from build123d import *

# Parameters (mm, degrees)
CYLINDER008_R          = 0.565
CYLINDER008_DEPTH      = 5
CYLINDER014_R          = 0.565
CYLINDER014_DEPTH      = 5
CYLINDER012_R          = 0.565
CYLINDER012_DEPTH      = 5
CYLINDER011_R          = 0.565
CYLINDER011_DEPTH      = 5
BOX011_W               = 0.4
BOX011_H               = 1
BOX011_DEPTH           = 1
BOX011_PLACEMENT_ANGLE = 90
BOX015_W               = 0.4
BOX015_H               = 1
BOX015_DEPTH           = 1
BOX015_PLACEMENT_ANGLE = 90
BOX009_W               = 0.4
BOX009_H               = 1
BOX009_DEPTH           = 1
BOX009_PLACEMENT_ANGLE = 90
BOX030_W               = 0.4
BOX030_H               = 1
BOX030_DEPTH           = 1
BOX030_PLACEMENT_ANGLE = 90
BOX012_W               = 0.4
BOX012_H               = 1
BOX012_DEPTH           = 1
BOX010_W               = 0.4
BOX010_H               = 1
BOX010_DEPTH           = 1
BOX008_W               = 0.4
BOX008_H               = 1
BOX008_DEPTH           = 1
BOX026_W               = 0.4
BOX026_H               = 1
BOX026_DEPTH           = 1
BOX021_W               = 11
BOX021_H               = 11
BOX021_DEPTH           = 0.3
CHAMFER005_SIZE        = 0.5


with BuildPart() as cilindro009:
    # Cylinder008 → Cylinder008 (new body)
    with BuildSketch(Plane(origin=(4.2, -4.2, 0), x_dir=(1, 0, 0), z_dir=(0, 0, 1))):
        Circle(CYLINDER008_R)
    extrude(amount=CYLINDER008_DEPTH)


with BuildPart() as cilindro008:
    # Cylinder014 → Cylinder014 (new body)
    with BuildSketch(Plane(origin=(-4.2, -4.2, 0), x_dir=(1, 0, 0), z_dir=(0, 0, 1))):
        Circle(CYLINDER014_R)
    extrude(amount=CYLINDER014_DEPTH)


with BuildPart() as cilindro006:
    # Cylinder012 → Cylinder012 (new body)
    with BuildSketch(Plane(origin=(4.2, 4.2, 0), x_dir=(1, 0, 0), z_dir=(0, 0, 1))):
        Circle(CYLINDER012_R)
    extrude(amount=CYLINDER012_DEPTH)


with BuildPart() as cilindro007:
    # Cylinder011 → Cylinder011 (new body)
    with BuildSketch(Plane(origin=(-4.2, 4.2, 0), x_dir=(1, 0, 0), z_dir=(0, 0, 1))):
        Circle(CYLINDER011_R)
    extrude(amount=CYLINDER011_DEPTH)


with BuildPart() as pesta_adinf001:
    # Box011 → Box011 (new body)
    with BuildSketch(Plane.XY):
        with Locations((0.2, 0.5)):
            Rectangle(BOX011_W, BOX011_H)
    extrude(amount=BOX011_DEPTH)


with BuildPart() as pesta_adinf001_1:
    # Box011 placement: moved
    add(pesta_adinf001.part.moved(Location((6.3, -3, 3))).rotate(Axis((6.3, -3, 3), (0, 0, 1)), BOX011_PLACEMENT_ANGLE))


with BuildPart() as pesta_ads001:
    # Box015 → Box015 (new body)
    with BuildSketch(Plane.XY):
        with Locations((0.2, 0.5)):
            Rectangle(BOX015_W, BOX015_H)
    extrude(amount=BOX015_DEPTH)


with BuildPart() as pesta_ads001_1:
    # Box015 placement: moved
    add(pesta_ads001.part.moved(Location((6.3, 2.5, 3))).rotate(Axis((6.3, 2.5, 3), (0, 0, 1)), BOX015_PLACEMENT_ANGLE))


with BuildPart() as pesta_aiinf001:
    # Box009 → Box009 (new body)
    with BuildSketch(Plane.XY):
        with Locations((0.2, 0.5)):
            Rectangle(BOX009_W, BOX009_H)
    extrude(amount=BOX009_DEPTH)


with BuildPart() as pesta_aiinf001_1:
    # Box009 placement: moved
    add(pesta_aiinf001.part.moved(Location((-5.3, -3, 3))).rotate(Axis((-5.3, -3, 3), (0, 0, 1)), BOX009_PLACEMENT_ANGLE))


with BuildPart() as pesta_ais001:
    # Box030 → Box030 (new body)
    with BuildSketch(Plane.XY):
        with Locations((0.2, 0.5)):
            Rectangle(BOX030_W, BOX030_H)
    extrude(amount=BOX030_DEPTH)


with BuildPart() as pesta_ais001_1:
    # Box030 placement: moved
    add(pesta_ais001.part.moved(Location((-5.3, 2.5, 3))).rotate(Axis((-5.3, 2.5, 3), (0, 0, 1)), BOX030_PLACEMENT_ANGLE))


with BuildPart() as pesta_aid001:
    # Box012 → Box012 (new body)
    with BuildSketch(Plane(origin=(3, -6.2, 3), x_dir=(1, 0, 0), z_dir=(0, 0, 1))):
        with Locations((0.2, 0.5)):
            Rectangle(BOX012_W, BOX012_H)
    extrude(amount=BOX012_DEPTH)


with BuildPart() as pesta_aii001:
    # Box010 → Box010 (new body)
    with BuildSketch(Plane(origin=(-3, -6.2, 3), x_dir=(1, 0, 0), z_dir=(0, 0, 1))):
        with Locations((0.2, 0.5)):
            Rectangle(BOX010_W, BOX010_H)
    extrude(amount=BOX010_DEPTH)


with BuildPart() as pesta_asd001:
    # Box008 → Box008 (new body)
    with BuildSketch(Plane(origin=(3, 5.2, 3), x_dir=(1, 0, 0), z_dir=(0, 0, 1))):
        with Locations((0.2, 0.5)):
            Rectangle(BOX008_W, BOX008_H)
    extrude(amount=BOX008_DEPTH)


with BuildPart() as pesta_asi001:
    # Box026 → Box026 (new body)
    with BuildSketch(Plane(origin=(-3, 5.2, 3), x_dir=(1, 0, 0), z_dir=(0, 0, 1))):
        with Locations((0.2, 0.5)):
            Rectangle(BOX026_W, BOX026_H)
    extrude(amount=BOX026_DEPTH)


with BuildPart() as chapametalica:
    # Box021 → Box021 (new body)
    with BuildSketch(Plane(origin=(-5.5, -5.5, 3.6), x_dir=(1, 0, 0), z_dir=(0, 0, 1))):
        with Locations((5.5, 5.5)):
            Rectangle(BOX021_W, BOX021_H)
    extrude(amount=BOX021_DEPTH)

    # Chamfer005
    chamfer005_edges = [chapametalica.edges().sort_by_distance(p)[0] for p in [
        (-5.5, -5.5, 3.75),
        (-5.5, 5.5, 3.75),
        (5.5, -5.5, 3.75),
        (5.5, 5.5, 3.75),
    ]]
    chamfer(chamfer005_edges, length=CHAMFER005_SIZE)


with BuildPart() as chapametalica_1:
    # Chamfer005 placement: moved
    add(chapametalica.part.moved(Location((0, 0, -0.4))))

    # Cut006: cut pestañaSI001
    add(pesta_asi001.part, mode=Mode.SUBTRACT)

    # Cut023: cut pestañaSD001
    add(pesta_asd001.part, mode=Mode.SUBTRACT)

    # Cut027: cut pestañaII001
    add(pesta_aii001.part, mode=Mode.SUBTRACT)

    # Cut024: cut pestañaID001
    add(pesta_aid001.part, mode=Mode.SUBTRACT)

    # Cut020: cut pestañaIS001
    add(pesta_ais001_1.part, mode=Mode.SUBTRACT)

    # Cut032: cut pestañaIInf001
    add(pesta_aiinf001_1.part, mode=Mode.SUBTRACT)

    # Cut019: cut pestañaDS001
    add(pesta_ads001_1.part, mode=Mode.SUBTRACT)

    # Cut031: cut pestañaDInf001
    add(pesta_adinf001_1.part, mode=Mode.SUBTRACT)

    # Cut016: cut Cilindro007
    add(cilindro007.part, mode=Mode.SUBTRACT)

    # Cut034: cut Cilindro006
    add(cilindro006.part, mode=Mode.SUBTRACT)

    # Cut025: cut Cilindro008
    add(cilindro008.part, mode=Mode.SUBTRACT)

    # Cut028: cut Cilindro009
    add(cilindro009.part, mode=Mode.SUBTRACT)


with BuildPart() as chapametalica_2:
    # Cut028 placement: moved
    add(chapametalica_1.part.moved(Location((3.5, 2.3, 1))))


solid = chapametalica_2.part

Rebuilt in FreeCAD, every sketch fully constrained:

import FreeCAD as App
import Part
import Sketcher


def edges_at(feature, points):
    """Names of the edges that pass closest to the given points."""
    edges = feature.Shape.Edges
    near = lambda p: min(range(len(edges)), key=lambda i: edges[i].distToShape(Part.Vertex(*p))[0])
    return sorted({f"Edge{near(p) + 1}" for p in points})


def add_polygon(sketch, points):
    """Adds a closed chain of lines whose ends are joined by coincident constraints."""
    first, n = sketch.GeometryCount, len(points)
    for a, b in zip(points, points[1:] + points[:1]):
        sketch.addGeometry(Part.LineSegment(App.Vector(*a, 0), App.Vector(*b, 0)), False)
    for i in range(n):
        sketch.addConstraint(Sketcher.Constraint("Coincident", first + i, 2, first + (i + 1) % n, 1))

doc = App.newDocument("Part")
body = doc.addObject("PartDesign::Body", "Body")

sketch1 = body.newObject("Sketcher::SketchObject", "Sketch")
sketch1.AttachmentSupport = (doc.getObject("XY_Plane"), [""])
sketch1.MapMode = "FlatFace"
sketch1.addGeometry(Part.Circle(App.Vector(4.2, -4.2, 0), App.Vector(0, 0, 1), 0.6), False)
sketch1.addConstraint([
    Sketcher.Constraint("Diameter", 0, 1.13),
    Sketcher.Constraint("DistanceX", -1, 1, 0, 3, 4.2),
    Sketcher.Constraint("DistanceY", 0, 3, -1, 1, 4.2),
])
pad1 = body.newObject("PartDesign::Pad", "Pad")
pad1.Profile = sketch1
pad1.Length = 5
body2 = doc.addObject("PartDesign::Body", "Body001")

sketch2 = body2.newObject("Sketcher::SketchObject", "Sketch001")
sketch2.AttachmentSupport = (doc.getObject("XY_Plane001"), [""])
sketch2.MapMode = "FlatFace"
sketch2.addGeometry(Part.Circle(App.Vector(-4.2, -4.2, 0), App.Vector(0, 0, 1), 0.6), False)
sketch2.addConstraint([
    Sketcher.Constraint("Diameter", 0, 1.13),
    Sketcher.Constraint("DistanceX", 0, 3, -1, 1, 4.2),
    Sketcher.Constraint("DistanceY", 0, 3, -1, 1, 4.2),
])
pad2 = body2.newObject("PartDesign::Pad", "Pad001")
pad2.Profile = sketch2
pad2.Length = 5
body3 = doc.addObject("PartDesign::Body", "Body002")

sketch3 = body3.newObject("Sketcher::SketchObject", "Sketch002")
sketch3.AttachmentSupport = (doc.getObject("XY_Plane002"), [""])
sketch3.MapMode = "FlatFace"
sketch3.addGeometry(Part.Circle(App.Vector(4.2, 4.2, 0), App.Vector(0, 0, 1), 0.6), False)
sketch3.addConstraint([
    Sketcher.Constraint("Diameter", 0, 1.13),
    Sketcher.Constraint("DistanceX", -1, 1, 0, 3, 4.2),
    Sketcher.Constraint("DistanceY", -1, 1, 0, 3, 4.2),
])
pad3 = body3.newObject("PartDesign::Pad", "Pad002")
pad3.Profile = sketch3
pad3.Length = 5
body4 = doc.addObject("PartDesign::Body", "Body003")

sketch4 = body4.newObject("Sketcher::SketchObject", "Sketch003")
sketch4.AttachmentSupport = (doc.getObject("XY_Plane003"), [""])
sketch4.MapMode = "FlatFace"
sketch4.addGeometry(Part.Circle(App.Vector(-4.2, 4.2, 0), App.Vector(0, 0, 1), 0.6), False)
sketch4.addConstraint([
    Sketcher.Constraint("Diameter", 0, 1.13),
    Sketcher.Constraint("DistanceX", 0, 3, -1, 1, 4.2),
    Sketcher.Constraint("DistanceY", -1, 1, 0, 3, 4.2),
])
pad4 = body4.newObject("PartDesign::Pad", "Pad003")
pad4.Profile = sketch4
pad4.Length = 5
body5 = doc.addObject("PartDesign::Body", "Body004")

sketch5 = body5.newObject("Sketcher::SketchObject", "Sketch004")
sketch5.AttachmentSupport = (doc.getObject("XY_Plane004"), [""])
sketch5.MapMode = "FlatFace"
add_polygon(sketch5, [(0, 1), (0, 0), (0.4, 0), (0.4, 1)])
sketch5.addConstraint([
    Sketcher.Constraint("Vertical", 0),
    Sketcher.Constraint("Horizontal", 1),
    Sketcher.Constraint("Vertical", 2),
    Sketcher.Constraint("Horizontal", 3),
    Sketcher.Constraint("Coincident", 0, 2, -1, 1),
    Sketcher.Constraint("DistanceY", 0, 2, 0, 1, 1.0),
    Sketcher.Constraint("DistanceX", 1, 1, 1, 2, 0.4),
])
pad5 = body5.newObject("PartDesign::Pad", "Pad004")
pad5.Profile = sketch5
pad5.Length = 1
body6 = doc.addObject("PartDesign::Body", "Body005")
doc.recompute()

body5.Placement = App.Placement(App.Vector(6.3, -3, 3), App.Rotation(App.Vector(0, 0, 1), 90))
boolean = body6.newObject("PartDesign::Boolean", "Boolean")
boolean.Type = "Fuse"
boolean.addObjects([body5])
body7 = doc.addObject("PartDesign::Body", "Body006")

sketch6 = body7.newObject("Sketcher::SketchObject", "Sketch005")
sketch6.AttachmentSupport = (doc.getObject("XY_Plane006"), [""])
sketch6.MapMode = "FlatFace"
add_polygon(sketch6, [(0, 1), (0, 0), (0.4, 0), (0.4, 1)])
sketch6.addConstraint([
    Sketcher.Constraint("Vertical", 0),
    Sketcher.Constraint("Horizontal", 1),
    Sketcher.Constraint("Vertical", 2),
    Sketcher.Constraint("Horizontal", 3),
    Sketcher.Constraint("Coincident", 0, 2, -1, 1),
    Sketcher.Constraint("DistanceY", 0, 2, 0, 1, 1.0),
    Sketcher.Constraint("DistanceX", 1, 1, 1, 2, 0.4),
])
pad6 = body7.newObject("PartDesign::Pad", "Pad005")
pad6.Profile = sketch6
pad6.Length = 1
body8 = doc.addObject("PartDesign::Body", "Body007")
doc.recompute()

body7.Placement = App.Placement(App.Vector(6.3, 2.5, 3), App.Rotation(App.Vector(0, 0, 1), 90))
boolean2 = body8.newObject("PartDesign::Boolean", "Boolean001")
boolean2.Type = "Fuse"
boolean2.addObjects([body7])
body9 = doc.addObject("PartDesign::Body", "Body008")

sketch7 = body9.newObject("Sketcher::SketchObject", "Sketch006")
sketch7.AttachmentSupport = (doc.getObject("XY_Plane008"), [""])
sketch7.MapMode = "FlatFace"
add_polygon(sketch7, [(0, 1), (0, 0), (0.4, 0), (0.4, 1)])
sketch7.addConstraint([
    Sketcher.Constraint("Vertical", 0),
    Sketcher.Constraint("Horizontal", 1),
    Sketcher.Constraint("Vertical", 2),
    Sketcher.Constraint("Horizontal", 3),
    Sketcher.Constraint("Coincident", 0, 2, -1, 1),
    Sketcher.Constraint("DistanceY", 0, 2, 0, 1, 1.0),
    Sketcher.Constraint("DistanceX", 1, 1, 1, 2, 0.4),
])
pad7 = body9.newObject("PartDesign::Pad", "Pad006")
pad7.Profile = sketch7
pad7.Length = 1
body10 = doc.addObject("PartDesign::Body", "Body009")
doc.recompute()

body9.Placement = App.Placement(App.Vector(-5.3, -3, 3), App.Rotation(App.Vector(0, 0, 1), 90))
boolean3 = body10.newObject("PartDesign::Boolean", "Boolean002")
boolean3.Type = "Fuse"
boolean3.addObjects([body9])
body11 = doc.addObject("PartDesign::Body", "Body010")

sketch8 = body11.newObject("Sketcher::SketchObject", "Sketch007")
sketch8.AttachmentSupport = (doc.getObject("XY_Plane010"), [""])
sketch8.MapMode = "FlatFace"
add_polygon(sketch8, [(0, 1), (0, 0), (0.4, 0), (0.4, 1)])
sketch8.addConstraint([
    Sketcher.Constraint("Vertical", 0),
    Sketcher.Constraint("Horizontal", 1),
    Sketcher.Constraint("Vertical", 2),
    Sketcher.Constraint("Horizontal", 3),
    Sketcher.Constraint("Coincident", 0, 2, -1, 1),
    Sketcher.Constraint("DistanceY", 0, 2, 0, 1, 1.0),
    Sketcher.Constraint("DistanceX", 1, 1, 1, 2, 0.4),
])
pad8 = body11.newObject("PartDesign::Pad", "Pad007")
pad8.Profile = sketch8
pad8.Length = 1
body12 = doc.addObject("PartDesign::Body", "Body011")
doc.recompute()

body11.Placement = App.Placement(App.Vector(-5.3, 2.5, 3), App.Rotation(App.Vector(0, 0, 1), 90))
boolean4 = body12.newObject("PartDesign::Boolean", "Boolean003")
boolean4.Type = "Fuse"
boolean4.addObjects([body11])
body13 = doc.addObject("PartDesign::Body", "Body012")

sketch9 = body13.newObject("Sketcher::SketchObject", "Sketch008")
sketch9.AttachmentSupport = (doc.getObject("XY_Plane012"), [""])
sketch9.MapMode = "FlatFace"
sketch9.AttachmentOffset = App.Placement(App.Vector(0, 0, 3), App.Rotation())
add_polygon(sketch9, [(3, -5.2), (3, -6.2), (3.4, -6.2), (3.4, -5.2)])
sketch9.addConstraint([
    Sketcher.Constraint("Vertical", 0),
    Sketcher.Constraint("Horizontal", 1),
    Sketcher.Constraint("Vertical", 2),
    Sketcher.Constraint("Horizontal", 3),
    Sketcher.Constraint("DistanceY", 0, 2, 0, 1, 1.0),
    Sketcher.Constraint("DistanceX", 1, 1, 1, 2, 0.4),
    Sketcher.Constraint("DistanceX", -1, 1, 0, 2, 3.0),
    Sketcher.Constraint("DistanceY", 0, 2, -1, 1, 6.2),
])
pad9 = body13.newObject("PartDesign::Pad", "Pad008")
pad9.Profile = sketch9
pad9.Length = 1
body14 = doc.addObject("PartDesign::Body", "Body013")

sketch10 = body14.newObject("Sketcher::SketchObject", "Sketch009")
sketch10.AttachmentSupport = (doc.getObject("XY_Plane013"), [""])
sketch10.MapMode = "FlatFace"
sketch10.AttachmentOffset = App.Placement(App.Vector(0, 0, 3), App.Rotation())
add_polygon(sketch10, [(-3, -5.2), (-3, -6.2), (-2.6, -6.2), (-2.6, -5.2)])
sketch10.addConstraint([
    Sketcher.Constraint("Vertical", 0),
    Sketcher.Constraint("Horizontal", 1),
    Sketcher.Constraint("Vertical", 2),
    Sketcher.Constraint("Horizontal", 3),
    Sketcher.Constraint("DistanceY", 0, 2, 0, 1, 1.0),
    Sketcher.Constraint("DistanceX", 1, 1, 1, 2, 0.4),
    Sketcher.Constraint("DistanceX", 0, 2, -1, 1, 3.0),
    Sketcher.Constraint("DistanceY", 0, 2, -1, 1, 6.2),
])
pad10 = body14.newObject("PartDesign::Pad", "Pad009")
pad10.Profile = sketch10
pad10.Length = 1
body15 = doc.addObject("PartDesign::Body", "Body014")

sketch11 = body15.newObject("Sketcher::SketchObject", "Sketch010")
sketch11.AttachmentSupport = (doc.getObject("XY_Plane014"), [""])
sketch11.MapMode = "FlatFace"
sketch11.AttachmentOffset = App.Placement(App.Vector(0, 0, 3), App.Rotation())
add_polygon(sketch11, [(3, 6.2), (3, 5.2), (3.4, 5.2), (3.4, 6.2)])
sketch11.addConstraint([
    Sketcher.Constraint("Vertical", 0),
    Sketcher.Constraint("Horizontal", 1),
    Sketcher.Constraint("Vertical", 2),
    Sketcher.Constraint("Horizontal", 3),
    Sketcher.Constraint("DistanceY", 0, 2, 0, 1, 1.0),
    Sketcher.Constraint("DistanceX", 1, 1, 1, 2, 0.4),
    Sketcher.Constraint("DistanceX", -1, 1, 0, 2, 3.0),
    Sketcher.Constraint("DistanceY", -1, 1, 0, 2, 5.2),
])
pad11 = body15.newObject("PartDesign::Pad", "Pad010")
pad11.Profile = sketch11
pad11.Length = 1
body16 = doc.addObject("PartDesign::Body", "Body015")

sketch12 = body16.newObject("Sketcher::SketchObject", "Sketch011")
sketch12.AttachmentSupport = (doc.getObject("XY_Plane015"), [""])
sketch12.MapMode = "FlatFace"
sketch12.AttachmentOffset = App.Placement(App.Vector(0, 0, 3), App.Rotation())
add_polygon(sketch12, [(-3, 6.2), (-3, 5.2), (-2.6, 5.2), (-2.6, 6.2)])
sketch12.addConstraint([
    Sketcher.Constraint("Vertical", 0),
    Sketcher.Constraint("Horizontal", 1),
    Sketcher.Constraint("Vertical", 2),
    Sketcher.Constraint("Horizontal", 3),
    Sketcher.Constraint("DistanceY", 0, 2, 0, 1, 1.0),
    Sketcher.Constraint("DistanceX", 1, 1, 1, 2, 0.4),
    Sketcher.Constraint("DistanceX", 0, 2, -1, 1, 3.0),
    Sketcher.Constraint("DistanceY", -1, 1, 0, 2, 5.2),
])
pad12 = body16.newObject("PartDesign::Pad", "Pad011")
pad12.Profile = sketch12
pad12.Length = 1
body17 = doc.addObject("PartDesign::Body", "Body016")

sketch13 = body17.newObject("Sketcher::SketchObject", "Sketch012")
sketch13.AttachmentSupport = (doc.getObject("XY_Plane016"), [""])
sketch13.MapMode = "FlatFace"
sketch13.AttachmentOffset = App.Placement(App.Vector(0, 0, 3.6), App.Rotation())
add_polygon(sketch13, [(-6, 6), (-6, -6), (6, -6), (6, 6)])
sketch13.addConstraint([
    Sketcher.Constraint("Vertical", 0),
    Sketcher.Constraint("Horizontal", 1),
    Sketcher.Constraint("Vertical", 2),
    Sketcher.Constraint("Horizontal", 3),
    Sketcher.Constraint("Symmetric", 0, 2, 2, 2, -1, 1),
    Sketcher.Constraint("Equal", 3, 0),
    Sketcher.Constraint("DistanceX", 1, 1, 1, 2, 11.0),
])
pad13 = body17.newObject("PartDesign::Pad", "Pad012")
pad13.Profile = sketch13
pad13.Length = 0.3
doc.recompute()

chamfer = body17.newObject("PartDesign::Chamfer", "Chamfer")
chamfer.Base = (pad13, edges_at(pad13, [
    (-5.5, -5.5, 3.75),
    (-5.5, 5.5, 3.75),
    (5.5, -5.5, 3.75),
    (5.5, 5.5, 3.75),
]))
chamfer.Size = 0.5
body18 = doc.addObject("PartDesign::Body", "Body017")
doc.recompute()

body17.Placement = App.Placement(App.Vector(0, 0, -0.4), App.Rotation(App.Vector(0, 0, 1), 0))
boolean5 = body18.newObject("PartDesign::Boolean", "Boolean004")
boolean5.Type = "Fuse"
boolean5.addObjects([body17])
doc.recompute()

boolean6 = body18.newObject("PartDesign::Boolean", "Boolean005")
boolean6.Type = "Cut"
boolean6.addObjects([body16])
doc.recompute()

boolean7 = body18.newObject("PartDesign::Boolean", "Boolean006")
boolean7.Type = "Cut"
boolean7.addObjects([body15])
doc.recompute()

boolean8 = body18.newObject("PartDesign::Boolean", "Boolean007")
boolean8.Type = "Cut"
boolean8.addObjects([body14])
doc.recompute()

boolean9 = body18.newObject("PartDesign::Boolean", "Boolean008")
boolean9.Type = "Cut"
boolean9.addObjects([body13])
doc.recompute()

boolean10 = body18.newObject("PartDesign::Boolean", "Boolean009")
boolean10.Type = "Cut"
boolean10.addObjects([body12])
doc.recompute()

boolean11 = body18.newObject("PartDesign::Boolean", "Boolean010")
boolean11.Type = "Cut"
boolean11.addObjects([body10])
doc.recompute()

boolean12 = body18.newObject("PartDesign::Boolean", "Boolean011")
boolean12.Type = "Cut"
boolean12.addObjects([body8])
doc.recompute()

boolean13 = body18.newObject("PartDesign::Boolean", "Boolean012")
boolean13.Type = "Cut"
boolean13.addObjects([body6])
doc.recompute()

boolean14 = body18.newObject("PartDesign::Boolean", "Boolean013")
boolean14.Type = "Cut"
boolean14.addObjects([body4])
doc.recompute()

boolean15 = body18.newObject("PartDesign::Boolean", "Boolean014")
boolean15.Type = "Cut"
boolean15.addObjects([body3])
doc.recompute()

boolean16 = body18.newObject("PartDesign::Boolean", "Boolean015")
boolean16.Type = "Cut"
boolean16.addObjects([body2])
doc.recompute()

boolean17 = body18.newObject("PartDesign::Boolean", "Boolean016")
boolean17.Type = "Cut"
boolean17.addObjects([body])
body19 = doc.addObject("PartDesign::Body", "Body018")
doc.recompute()

body18.Placement = App.Placement(App.Vector(3.5, 2.3, 1), App.Rotation(App.Vector(0, 0, 1), 0))
boolean18 = body19.newObject("PartDesign::Boolean", "Boolean017")
boolean18.Type = "Fuse"
boolean18.addObjects([body18])

doc.recompute()
